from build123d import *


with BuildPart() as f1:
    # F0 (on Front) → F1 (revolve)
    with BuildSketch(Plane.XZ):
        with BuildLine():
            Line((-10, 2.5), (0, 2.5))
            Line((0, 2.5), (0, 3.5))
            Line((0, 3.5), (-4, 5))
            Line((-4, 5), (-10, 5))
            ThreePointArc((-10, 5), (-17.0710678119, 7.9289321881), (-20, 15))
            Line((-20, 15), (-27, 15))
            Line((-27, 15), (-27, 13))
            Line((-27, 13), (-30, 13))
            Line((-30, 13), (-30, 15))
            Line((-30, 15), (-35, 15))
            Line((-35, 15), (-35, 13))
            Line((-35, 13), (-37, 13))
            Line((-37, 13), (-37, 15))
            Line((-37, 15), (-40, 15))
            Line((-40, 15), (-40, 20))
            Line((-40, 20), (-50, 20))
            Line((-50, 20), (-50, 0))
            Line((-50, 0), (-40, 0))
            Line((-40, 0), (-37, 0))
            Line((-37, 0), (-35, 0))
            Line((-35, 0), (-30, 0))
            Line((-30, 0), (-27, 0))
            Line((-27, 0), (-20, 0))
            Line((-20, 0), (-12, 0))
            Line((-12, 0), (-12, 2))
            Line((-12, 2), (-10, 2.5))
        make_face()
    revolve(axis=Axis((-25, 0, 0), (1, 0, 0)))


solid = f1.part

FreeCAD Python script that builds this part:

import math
import FreeCAD as App
import Part
import Sketcher
Q = App.Units.Quantity

doc = App.newDocument("Part")
body = doc.addObject("PartDesign::Body", "Body")

# Sketch on XZ plane
sketch1 = doc.addObject("Sketcher::SketchObject", "Sketch")
body.addObject(sketch1)
sketch1.AttachmentSupport = (doc.XZ_Plane, [""])
sketch1.MapMode = "FlatFace"
sketch1.addGeometry([
    Part.LineSegment(App.Vector(-10, 2.5, 0), App.Vector(0, 2.5, 0)),  # 0
    Part.LineSegment(App.Vector(0, 2.5, 0), App.Vector(0, 3.5, 0)),  # 1
    Part.LineSegment(App.Vector(0, 3.5, 0), App.Vector(-4, 5, 0)),  # 2
    Part.LineSegment(App.Vector(-4, 5, 0), App.Vector(-10, 5, 0)),  # 3
    Part.ArcOfCircle(Part.Circle(App.Vector(-10, 15, 0), App.Vector(0, 0, 1), 10), math.radians(180), math.radians(270)),  # 4
    Part.LineSegment(App.Vector(-20, 15, 0), App.Vector(-27, 15, 0)),  # 5
    Part.LineSegment(App.Vector(-27, 15, 0), App.Vector(-27, 13, 0)),  # 6
    Part.LineSegment(App.Vector(-27, 13, 0), App.Vector(-30, 13, 0)),  # 7
    Part.LineSegment(App.Vector(-30, 13, 0), App.Vector(-30, 15, 0)),  # 8
    Part.LineSegment(App.Vector(-30, 15, 0), App.Vector(-35, 15, 0)),  # 9
    Part.LineSegment(App.Vector(-35, 15, 0), App.Vector(-35, 13, 0)),  # 10
    Part.LineSegment(App.Vector(-35, 13, 0), App.Vector(-37, 13, 0)),  # 11
    Part.LineSegment(App.Vector(-37, 13, 0), App.Vector(-37, 15, 0)),  # 12
    Part.LineSegment(App.Vector(-37, 15, 0), App.Vector(-40, 15, 0)),  # 13
    Part.LineSegment(App.Vector(-40, 15, 0), App.Vector(-40, 20, 0)),  # 14
    Part.LineSegment(App.Vector(-40, 20, 0), App.Vector(-50, 20, 0)),  # 15
    Part.LineSegment(App.Vector(-50, 20, 0), App.Vector(-50, 0, 0)),  # 16
    Part.LineSegment(App.Vector(-50, 0, 0), App.Vector(-12, 0, 0)),  # 17
    Part.LineSegment(App.Vector(-12, 0, 0), App.Vector(-12, 2, 0)),  # 18
    Part.LineSegment(App.Vector(-12, 2, 0), App.Vector(-10, 2.5, 0)),  # 19
], False)
sketch1.addConstraint([
    Sketcher.Constraint("Coincident", 0, 2, 1, 1),
    Sketcher.Constraint("Coincident", 1, 2, 2, 1),
    Sketcher.Constraint("Coincident", 2, 2, 3, 1),
    Sketcher.Constraint("Tangent", 3, 2, 4, 2),
    Sketcher.Constraint("Coincident", 4, 1, 5, 1),
    Sketcher.Constraint("Coincident", 5, 2, 6, 1),
    Sketcher.Constraint("Coincident", 6, 2, 7, 1),
    Sketcher.Constraint("Coincident", 7, 2, 8, 1),
    Sketcher.Constraint("Coincident", 8, 2, 9, 1),
    Sketcher.Constraint("Coincident", 9, 2, 10, 1),
    Sketcher.Constraint("Coincident", 10, 2, 11, 1),
    Sketcher.Constraint("Coincident", 11, 2, 12, 1),
    Sketcher.Constraint("Coincident", 12, 2, 13, 1),
    Sketcher.Constraint("Coincident", 13, 2, 14, 1),
    Sketcher.Constraint("Coincident", 14, 2, 15, 1),
    Sketcher.Constraint("Coincident", 15, 2, 16, 1),
    Sketcher.Constraint("Coincident", 16, 2, 17, 1),
    Sketcher.Constraint("Coincident", 17, 2, 18, 1),
    Sketcher.Constraint("Coincident", 18, 2, 19, 1),
    Sketcher.Constraint("Coincident", 19, 2, 0, 1),
    Sketcher.Constraint("Horizontal", 0),
    Sketcher.Constraint("Vertical", 1),
    Sketcher.Constraint("Horizontal", 3),
    Sketcher.Constraint("Horizontal", 5),
    Sketcher.Constraint("Vertical", 6),
    Sketcher.Constraint("Horizontal", 7),
    Sketcher.Constraint("Vertical", 8),
    Sketcher.Constraint("Horizontal", 9),
    Sketcher.Constraint("Vertical", 10),
    Sketcher.Constraint("Horizontal", 11),
    Sketcher.Constraint("Vertical", 12),
    Sketcher.Constraint("Horizontal", 13),
    Sketcher.Constraint("Vertical", 14),
    Sketcher.Constraint("Horizontal", 15),
    Sketcher.Constraint("Vertical", 16),
    Sketcher.Constraint("Horizontal", 17),
    Sketcher.Constraint("Vertical", 18),
    Sketcher.Constraint("PointOnObject", 0, 2, -2),
    Sketcher.Constraint("PointOnObject", 16, 2, -1),
    Sketcher.Constraint("Horizontal", 5, 2, 8, 2),
    Sketcher.Constraint("Horizontal", 7, 2, 10, 2),
    Sketcher.Constraint("Horizontal", 9, 2, 12, 2),
    Sketcher.Constraint("Vertical", 3, 2, 19, 2),
    Sketcher.Constraint("Equal", 7, 13),
    Sketcher.Constraint("Equal", 0, 15),
    Sketcher.Constraint("Equal", 11, 6),
    Sketcher.Constraint("Equal", 9, 14),
    Sketcher.Constraint("Equal", 12, 18),
    Sketcher.Constraint("Radius", 4, Q("10 mm")),
    Sketcher.Constraint("DistanceX", 0, 1, 0, 2, Q("10 mm")),
    Sketcher.Constraint("DistanceX", 3, 2, 3, 1, Q("6 mm")),
    Sketcher.Constraint("DistanceX", 5, 2, 5, 1, Q("7 mm")),
    Sketcher.Constraint("DistanceX", 7, 2, 7, 1, Q("3 mm")),
    Sketcher.Constraint("DistanceX", 9, 2, 9, 1, Q("5 mm")),
    Sketcher.Constraint("DistanceX", 11, 2, 11, 1, Q("2 mm")),
    Sketcher.Constraint("DistanceX", 17, 1, 17, 2, Q("38 mm")),
    Sketcher.Constraint("DistanceY", 1, 1, 1, 2, Q("1 mm")),
    Sketcher.Constraint("DistanceY", 16, 2, 16, 1, Q("20 mm")),
    Sketcher.Constraint("DistanceY", -1, 1, 4, 3, Q("15 mm")),
    Sketcher.Constraint("DistanceY", -1, 1, 0, 2, Q("2.5 mm")),
])
revolution = doc.addObject("PartDesign::Revolution", "Revolution")
body.addObject(revolution)
revolution.Profile = sketch1
revolution.ReferenceAxis = (sketch1, ["H_Axis"])
revolution.Angle = 360

doc.recompute()
